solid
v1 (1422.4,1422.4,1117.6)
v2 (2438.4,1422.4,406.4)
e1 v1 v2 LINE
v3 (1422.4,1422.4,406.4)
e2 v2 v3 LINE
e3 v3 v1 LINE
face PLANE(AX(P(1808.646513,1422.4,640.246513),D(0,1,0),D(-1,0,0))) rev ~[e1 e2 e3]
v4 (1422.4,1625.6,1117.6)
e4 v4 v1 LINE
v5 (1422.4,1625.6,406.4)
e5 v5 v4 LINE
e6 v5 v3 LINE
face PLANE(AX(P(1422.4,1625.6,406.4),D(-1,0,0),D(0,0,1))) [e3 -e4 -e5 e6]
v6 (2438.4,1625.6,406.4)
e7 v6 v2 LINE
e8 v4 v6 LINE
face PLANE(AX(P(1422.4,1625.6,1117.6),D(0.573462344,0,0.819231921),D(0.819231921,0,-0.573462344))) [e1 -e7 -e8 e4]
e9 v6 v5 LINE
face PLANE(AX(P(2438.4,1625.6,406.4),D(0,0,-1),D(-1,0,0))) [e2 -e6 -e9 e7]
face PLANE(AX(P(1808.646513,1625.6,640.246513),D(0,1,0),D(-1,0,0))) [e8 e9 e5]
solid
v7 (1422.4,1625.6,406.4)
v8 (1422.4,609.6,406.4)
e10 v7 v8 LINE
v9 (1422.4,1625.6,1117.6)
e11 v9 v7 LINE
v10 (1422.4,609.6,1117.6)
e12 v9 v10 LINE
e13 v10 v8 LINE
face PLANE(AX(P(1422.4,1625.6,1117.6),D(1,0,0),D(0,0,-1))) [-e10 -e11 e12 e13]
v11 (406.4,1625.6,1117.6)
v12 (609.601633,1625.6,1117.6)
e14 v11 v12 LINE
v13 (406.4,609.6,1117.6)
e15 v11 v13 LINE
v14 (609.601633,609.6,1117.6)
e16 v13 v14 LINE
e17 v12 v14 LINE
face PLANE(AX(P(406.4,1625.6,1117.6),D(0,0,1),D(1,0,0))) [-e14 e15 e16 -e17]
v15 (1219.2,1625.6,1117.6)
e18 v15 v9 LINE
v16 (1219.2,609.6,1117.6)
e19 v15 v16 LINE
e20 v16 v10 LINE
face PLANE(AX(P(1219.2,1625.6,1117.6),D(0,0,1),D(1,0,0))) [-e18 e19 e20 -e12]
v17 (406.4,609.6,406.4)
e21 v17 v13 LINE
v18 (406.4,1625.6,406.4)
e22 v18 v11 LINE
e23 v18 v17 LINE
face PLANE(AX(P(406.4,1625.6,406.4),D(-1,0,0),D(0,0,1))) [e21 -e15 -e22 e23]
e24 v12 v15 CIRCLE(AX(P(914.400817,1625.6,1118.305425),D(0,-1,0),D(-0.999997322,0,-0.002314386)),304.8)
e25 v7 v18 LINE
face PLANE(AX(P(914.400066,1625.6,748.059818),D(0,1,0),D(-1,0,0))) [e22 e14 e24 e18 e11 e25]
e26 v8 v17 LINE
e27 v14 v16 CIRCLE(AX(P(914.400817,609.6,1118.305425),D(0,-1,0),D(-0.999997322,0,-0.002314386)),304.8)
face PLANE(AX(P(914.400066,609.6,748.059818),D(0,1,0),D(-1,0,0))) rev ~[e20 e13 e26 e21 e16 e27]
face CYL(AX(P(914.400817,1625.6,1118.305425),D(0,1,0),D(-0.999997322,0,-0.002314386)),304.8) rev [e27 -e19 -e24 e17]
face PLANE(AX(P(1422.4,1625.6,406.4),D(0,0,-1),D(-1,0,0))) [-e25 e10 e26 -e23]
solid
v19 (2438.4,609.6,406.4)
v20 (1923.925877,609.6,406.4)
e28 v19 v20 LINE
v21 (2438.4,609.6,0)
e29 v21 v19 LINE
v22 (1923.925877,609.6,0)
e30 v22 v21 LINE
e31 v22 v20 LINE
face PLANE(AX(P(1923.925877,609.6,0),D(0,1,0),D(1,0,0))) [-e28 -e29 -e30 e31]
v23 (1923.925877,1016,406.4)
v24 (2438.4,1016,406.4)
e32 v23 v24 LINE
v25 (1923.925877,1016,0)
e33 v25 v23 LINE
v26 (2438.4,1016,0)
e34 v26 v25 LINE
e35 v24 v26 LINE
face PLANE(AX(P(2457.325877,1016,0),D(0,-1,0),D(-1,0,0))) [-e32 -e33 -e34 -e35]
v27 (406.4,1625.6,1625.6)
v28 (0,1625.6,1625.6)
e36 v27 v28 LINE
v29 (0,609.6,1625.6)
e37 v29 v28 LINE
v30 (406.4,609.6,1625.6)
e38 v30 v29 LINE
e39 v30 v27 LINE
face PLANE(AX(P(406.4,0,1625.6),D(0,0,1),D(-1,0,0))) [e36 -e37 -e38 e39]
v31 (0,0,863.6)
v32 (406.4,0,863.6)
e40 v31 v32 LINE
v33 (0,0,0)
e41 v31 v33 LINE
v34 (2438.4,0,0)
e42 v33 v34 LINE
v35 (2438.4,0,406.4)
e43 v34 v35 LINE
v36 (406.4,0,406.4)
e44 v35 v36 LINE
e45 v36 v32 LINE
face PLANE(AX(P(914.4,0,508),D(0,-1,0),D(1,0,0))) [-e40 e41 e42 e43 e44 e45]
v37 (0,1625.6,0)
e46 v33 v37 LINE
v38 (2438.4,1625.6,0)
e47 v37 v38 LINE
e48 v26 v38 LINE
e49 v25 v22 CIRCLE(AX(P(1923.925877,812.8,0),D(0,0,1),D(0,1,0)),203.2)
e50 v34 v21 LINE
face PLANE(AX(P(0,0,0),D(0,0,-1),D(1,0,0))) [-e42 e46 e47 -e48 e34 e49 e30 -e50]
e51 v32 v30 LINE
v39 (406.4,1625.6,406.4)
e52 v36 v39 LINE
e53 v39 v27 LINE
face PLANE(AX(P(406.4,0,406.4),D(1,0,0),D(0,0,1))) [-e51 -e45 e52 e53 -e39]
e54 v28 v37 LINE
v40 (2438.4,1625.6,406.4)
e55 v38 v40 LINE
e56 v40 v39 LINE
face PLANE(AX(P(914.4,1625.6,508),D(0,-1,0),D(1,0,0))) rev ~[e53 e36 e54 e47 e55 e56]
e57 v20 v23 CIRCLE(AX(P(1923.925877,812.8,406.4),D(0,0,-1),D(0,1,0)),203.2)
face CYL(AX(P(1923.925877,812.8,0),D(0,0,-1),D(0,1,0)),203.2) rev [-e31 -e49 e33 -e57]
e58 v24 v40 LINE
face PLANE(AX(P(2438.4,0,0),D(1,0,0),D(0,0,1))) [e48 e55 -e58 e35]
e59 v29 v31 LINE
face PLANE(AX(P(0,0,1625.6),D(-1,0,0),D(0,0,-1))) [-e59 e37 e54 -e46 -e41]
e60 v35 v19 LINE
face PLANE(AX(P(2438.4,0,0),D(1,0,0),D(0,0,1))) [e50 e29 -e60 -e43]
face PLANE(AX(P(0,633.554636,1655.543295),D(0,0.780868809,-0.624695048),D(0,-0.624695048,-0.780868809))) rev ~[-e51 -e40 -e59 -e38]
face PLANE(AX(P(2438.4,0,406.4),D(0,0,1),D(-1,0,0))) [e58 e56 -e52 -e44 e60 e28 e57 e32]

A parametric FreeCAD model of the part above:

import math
import FreeCAD as App
import Part
import Sketcher
Q = App.Units.Quantity

doc = App.newDocument("Part")
body = doc.addObject("PartDesign::Body", "Body")

# Sketch on XZ plane
sketch1 = body.newObject("Sketcher::SketchObject", "Sketch")
sketch1.AttachmentSupport = (doc.getObject("XZ_Plane"), [""])
sketch1.MapMode = "FlatFace"
sketch1.addGeometry(Part.LineSegment(App.Vector(0, 1626, 0), App.Vector(0, 0, 0)), False)
sketch1.addGeometry(Part.LineSegment(App.Vector(0, 0, 0), App.Vector(2438, 0, 0)), False)
sketch1.addGeometry(Part.LineSegment(App.Vector(2438, 0, 0), App.Vector(2438, 406, 0)), False)
sketch1.addGeometry(Part.LineSegment(App.Vector(2438, 406, 0), App.Vector(406, 406, 0)), False)
sketch1.addGeometry(Part.LineSegment(App.Vector(406, 406, 0), App.Vector(406, 1626, 0)), False)
sketch1.addGeometry(Part.LineSegment(App.Vector(406, 1626, 0), App.Vector(0, 1626, 0)), False)
sketch1.addConstraint(Sketcher.Constraint("Coincident", 0, 2, 1, 1))
sketch1.addConstraint(Sketcher.Constraint("Coincident", 1, 2, 2, 1))
sketch1.addConstraint(Sketcher.Constraint("Coincident", 2, 2, 3, 1))
sketch1.addConstraint(Sketcher.Constraint("Coincident", 3, 2, 4, 1))
sketch1.addConstraint(Sketcher.Constraint("Coincident", 4, 2, 5, 1))
sketch1.addConstraint(Sketcher.Constraint("Coincident", 5, 2, 0, 1))
sketch1.addConstraint(Sketcher.Constraint("Vertical", 0))
sketch1.addConstraint(Sketcher.Constraint("Horizontal", 1))
sketch1.addConstraint(Sketcher.Constraint("Vertical", 2))
sketch1.addConstraint(Sketcher.Constraint("Horizontal", 3))
sketch1.addConstraint(Sketcher.Constraint("Vertical", 4))
sketch1.addConstraint(Sketcher.Constraint("Horizontal", 5))
sketch1.addConstraint(Sketcher.Constraint("Coincident", 0, 2, -1, 1))
sketch1.addConstraint(Sketcher.Constraint("Equal", 5, 2))
sketch1.addConstraint(Sketcher.Constraint("DistanceX", 1, 1, 1, 2, Q("96 in")))
sketch1.addConstraint(Sketcher.Constraint("DistanceX", 3, 2, 3, 1, Q("80 in")))
sketch1.addConstraint(Sketcher.Constraint("DistanceY", 0, 2, 0, 1, Q("64 in")))
pad1 = body.newObject("PartDesign::Pad", "Pad")
pad1.Profile = sketch1
pad1.Length = Q("64 in")
pad1.Reversed = True

# Sketch on XY plane
sketch2 = body.newObject("Sketcher::SketchObject", "Sketch001")
sketch2.AttachmentSupport = (doc.getObject("XY_Plane"), [""])
sketch2.MapMode = "FlatFace"
sketch2.addGeometry(Part.LineSegment(App.Vector(2457, 610, 0), App.Vector(2457, 1016, 0)), False)
sketch2.addGeometry(Part.LineSegment(App.Vector(2457, 1016, 0), App.Vector(1924, 1016, 0)), False)
sketch2.addGeometry(Part.ArcOfCircle(Part.Circle(App.Vector(1924, 813, 0), App.Vector(0, 0, 1), 203), math.radians(90), math.radians(270)), False)
sketch2.addGeometry(Part.LineSegment(App.Vector(1924, 610, 0), App.Vector(2457, 610, 0)), False)
sketch2.addConstraint(Sketcher.Constraint("Coincident", 0, 2, 1, 1))
sketch2.addConstraint(Sketcher.Constraint("Tangent", 1, 2, 2, 1))
sketch2.addConstraint(Sketcher.Constraint("Tangent", 2, 2, 3, 1))
sketch2.addConstraint(Sketcher.Constraint("Coincident", 3, 2, 0, 1))
sketch2.addConstraint(Sketcher.Constraint("Vertical", 0))
sketch2.addConstraint(Sketcher.Constraint("Horizontal", 1))
sketch2.addConstraint(Sketcher.Constraint("Horizontal", 3))
sketch2.addConstraint(Sketcher.Constraint("Radius", 2, Q("8 in")))
sketch2.addConstraint(Sketcher.Constraint("DistanceX", 1, 2, 1, 1, Q("21 in")))
sketch2.addConstraint(Sketcher.Constraint("DistanceY", -1, 1, 2, 3, Q("32 in")))
sketch2.addConstraint(Sketcher.Constraint("DistanceX", -1, 1, 2, 3, Q("1923.925877 mm")))
pocket1 = body.newObject("PartDesign::Pocket", "Pocket")
pocket1.Profile = sketch2
pocket1.Type = "ThroughAll"
pocket1.Reversed = True

# Sketch on YZ plane
sketch3 = body.newObject("Sketcher::SketchObject", "Sketch002")
sketch3.AttachmentSupport = (doc.getObject("YZ_Plane"), [""])
sketch3.MapMode = "FlatFace"
sketch3.addGeometry(Part.LineSegment(App.Vector(-308, 1656, 0), App.Vector(634, 1656, 0)), False)
sketch3.addGeometry(Part.LineSegment(App.Vector(634, 1656, 0), App.Vector(-199, 615, 0)), False)
sketch3.addGeometry(Part.LineSegment(App.Vector(-199, 615, 0), App.Vector(-308, 1656, 0)), False)
sketch3.addConstraint(Sketcher.Constraint("Coincident", 0, 2, 1, 1))
sketch3.addConstraint(Sketcher.Constraint("Coincident", 1, 2, 2, 1))
sketch3.addConstraint(Sketcher.Constraint("Coincident", 2, 2, 0, 1))
sketch3.addConstraint(Sketcher.Constraint("Horizontal", 0))
sketch3.addConstraint(Sketcher.Constraint("Distance", 2, Q("1045.941982 mm")))
sketch3.addConstraint(Sketcher.Constraint("DistanceX", 0, 1, 0, 2, Q("941.815315 mm")))
sketch3.addConstraint(Sketcher.Constraint("DistanceX", 1, 2, -1, 1, Q("198.586172 mm")))
sketch3.addConstraint(Sketcher.Constraint("DistanceX", 2, 2, -1, 1, Q("308.260679 mm")))
sketch3.addConstraint(Sketcher.Constraint("DistanceY", -1, 1, 0, 2, Q("1655.543295 mm")))
pocket2 = body.newObject("PartDesign::Pocket", "Pocket001")
pocket2.Profile = sketch3
pocket2.Type = "ThroughAll"
pocket2.Reversed = True
body2 = doc.addObject("PartDesign::Body", "Body001")

# Sketch on XZ plane
sketch4 = body2.newObject("Sketcher::SketchObject", "Sketch003")
sketch4.AttachmentSupport = (doc.getObject("XZ_Plane001"), [""])
sketch4.MapMode = "FlatFace"
sketch4.AttachmentOffset = App.Placement(App.Vector(0, 0, -64 * 25.4), App.Rotation())
sketch4.addGeometry(Part.LineSegment(App.Vector(406.4, 406.4, 0), App.Vector(406.4, 1117.6, 0)), False)
sketch4.addGeometry(Part.LineSegment(App.Vector(406.4, 1117.6, 0), App.Vector(609.601633, 1117.6, 0)), False)
sketch4.addGeometry(Part.ArcOfCircle(Part.Circle(App.Vector(914.400817, 1118.305425, 0), App.Vector(0, 0, 1), 304.8), math.radians(-179.867395), math.radians(-0.132605)), False)
sketch4.addGeometry(Part.LineSegment(App.Vector(1219.2, 1117.6, 0), App.Vector(1422.4, 1117.6, 0)), False)
sketch4.addGeometry(Part.LineSegment(App.Vector(1422.4, 1117.6, 0), App.Vector(1422.4, 406.4, 0)), False)
sketch4.addGeometry(Part.LineSegment(App.Vector(1422.4, 406.4, 0), App.Vector(406.4, 406.4, 0)), False)
sketch4.addConstraint(Sketcher.Constraint("Coincident", 0, 2, 1, 1))
sketch4.addConstraint(Sketcher.Constraint("Coincident", 1, 2, 2, 1))
sketch4.addConstraint(Sketcher.Constraint("Coincident", 2, 2, 3, 1))
sketch4.addConstraint(Sketcher.Constraint("Coincident", 3, 2, 4, 1))
sketch4.addConstraint(Sketcher.Constraint("Coincident", 4, 2, 5, 1))
sketch4.addConstraint(Sketcher.Constraint("Coincident", 5, 2, 0, 1))
sketch4.addConstraint(Sketcher.Constraint("Vertical", 0))
sketch4.addConstraint(Sketcher.Constraint("Horizontal", 1))
sketch4.addConstraint(Sketcher.Constraint("Horizontal", 3))
sketch4.addConstraint(Sketcher.Constraint("Vertical", 4))
sketch4.addConstraint(Sketcher.Constraint("Horizontal", 5))
sketch4.addConstraint(Sketcher.Constraint("Horizontal", 1, 2, 2, 2))
sketch4.addConstraint(Sketcher.Constraint("Radius", 2, Q("12 in")))
sketch4.addConstraint(Sketcher.Constraint("DistanceX", 3, 1, 3, 2, Q("8 in")))
sketch4.addConstraint(Sketcher.Constraint("DistanceX", 5, 2, 5, 1, Q("40 in")))
sketch4.addConstraint(Sketcher.Constraint("DistanceY", 0, 1, 0, 2, Q("28 in")))
sketch4.addConstraint(Sketcher.Constraint("DistanceX", -1, 1, 0, 2, Q("16 in")))
sketch4.addConstraint(Sketcher.Constraint("DistanceY", -1, 1, 0, 2, Q("44 in")))
sketch4.addConstraint(Sketcher.Constraint("DistanceX", 1, 1, 1, 2, Q("203.201633 mm")))
pad2 = body2.newObject("PartDesign::Pad", "Pad001")
pad2.Profile = sketch4
pad2.Length = Q("40 in")
body3 = doc.addObject("PartDesign::Body", "Body002")

# Sketch on XZ plane
sketch5 = body3.newObject("Sketcher::SketchObject", "Sketch004")
sketch5.AttachmentSupport = (doc.getObject("XZ_Plane002"), [""])
sketch5.MapMode = "FlatFace"
sketch5.AttachmentOffset = App.Placement(App.Vector(0, 0, -64 * 25.4), App.Rotation())
sketch5.addGeometry(Part.LineSegment(App.Vector(1422, 406, 0), App.Vector(1422, 1118, 0)), False)
sketch5.addGeometry(Part.LineSegment(App.Vector(1422, 1118, 0), App.Vector(2438, 406, 0)), False)
sketch5.addGeometry(Part.LineSegment(App.Vector(2438, 406, 0), App.Vector(1422, 406, 0)), False)
sketch5.addConstraint(Sketcher.Constraint("Coincident", 0, 2, 1, 1))
sketch5.addConstraint(Sketcher.Constraint("Coincident", 1, 2, 2, 1))
sketch5.addConstraint(Sketcher.Constraint("Coincident", 2, 2, 0, 1))
sketch5.addConstraint(Sketcher.Constraint("Vertical", 0))
sketch5.addConstraint(Sketcher.Constraint("Horizontal", 2))
sketch5.addConstraint(Sketcher.Constraint("DistanceX", 2, 2, 2, 1, Q("40 in")))
sketch5.addConstraint(Sketcher.Constraint("DistanceY", 0, 1, 0, 2, Q("28 in")))
sketch5.addConstraint(Sketcher.Constraint("DistanceX", -1, 1, 0, 2, Q("56 in")))
sketch5.addConstraint(Sketcher.Constraint("DistanceY", -1, 1, 0, 2, Q("44 in")))
pad3 = body3.newObject("PartDesign::Pad", "Pad002")
pad3.Profile = sketch5
pad3.Length = Q("8 in")

doc.recompute()
